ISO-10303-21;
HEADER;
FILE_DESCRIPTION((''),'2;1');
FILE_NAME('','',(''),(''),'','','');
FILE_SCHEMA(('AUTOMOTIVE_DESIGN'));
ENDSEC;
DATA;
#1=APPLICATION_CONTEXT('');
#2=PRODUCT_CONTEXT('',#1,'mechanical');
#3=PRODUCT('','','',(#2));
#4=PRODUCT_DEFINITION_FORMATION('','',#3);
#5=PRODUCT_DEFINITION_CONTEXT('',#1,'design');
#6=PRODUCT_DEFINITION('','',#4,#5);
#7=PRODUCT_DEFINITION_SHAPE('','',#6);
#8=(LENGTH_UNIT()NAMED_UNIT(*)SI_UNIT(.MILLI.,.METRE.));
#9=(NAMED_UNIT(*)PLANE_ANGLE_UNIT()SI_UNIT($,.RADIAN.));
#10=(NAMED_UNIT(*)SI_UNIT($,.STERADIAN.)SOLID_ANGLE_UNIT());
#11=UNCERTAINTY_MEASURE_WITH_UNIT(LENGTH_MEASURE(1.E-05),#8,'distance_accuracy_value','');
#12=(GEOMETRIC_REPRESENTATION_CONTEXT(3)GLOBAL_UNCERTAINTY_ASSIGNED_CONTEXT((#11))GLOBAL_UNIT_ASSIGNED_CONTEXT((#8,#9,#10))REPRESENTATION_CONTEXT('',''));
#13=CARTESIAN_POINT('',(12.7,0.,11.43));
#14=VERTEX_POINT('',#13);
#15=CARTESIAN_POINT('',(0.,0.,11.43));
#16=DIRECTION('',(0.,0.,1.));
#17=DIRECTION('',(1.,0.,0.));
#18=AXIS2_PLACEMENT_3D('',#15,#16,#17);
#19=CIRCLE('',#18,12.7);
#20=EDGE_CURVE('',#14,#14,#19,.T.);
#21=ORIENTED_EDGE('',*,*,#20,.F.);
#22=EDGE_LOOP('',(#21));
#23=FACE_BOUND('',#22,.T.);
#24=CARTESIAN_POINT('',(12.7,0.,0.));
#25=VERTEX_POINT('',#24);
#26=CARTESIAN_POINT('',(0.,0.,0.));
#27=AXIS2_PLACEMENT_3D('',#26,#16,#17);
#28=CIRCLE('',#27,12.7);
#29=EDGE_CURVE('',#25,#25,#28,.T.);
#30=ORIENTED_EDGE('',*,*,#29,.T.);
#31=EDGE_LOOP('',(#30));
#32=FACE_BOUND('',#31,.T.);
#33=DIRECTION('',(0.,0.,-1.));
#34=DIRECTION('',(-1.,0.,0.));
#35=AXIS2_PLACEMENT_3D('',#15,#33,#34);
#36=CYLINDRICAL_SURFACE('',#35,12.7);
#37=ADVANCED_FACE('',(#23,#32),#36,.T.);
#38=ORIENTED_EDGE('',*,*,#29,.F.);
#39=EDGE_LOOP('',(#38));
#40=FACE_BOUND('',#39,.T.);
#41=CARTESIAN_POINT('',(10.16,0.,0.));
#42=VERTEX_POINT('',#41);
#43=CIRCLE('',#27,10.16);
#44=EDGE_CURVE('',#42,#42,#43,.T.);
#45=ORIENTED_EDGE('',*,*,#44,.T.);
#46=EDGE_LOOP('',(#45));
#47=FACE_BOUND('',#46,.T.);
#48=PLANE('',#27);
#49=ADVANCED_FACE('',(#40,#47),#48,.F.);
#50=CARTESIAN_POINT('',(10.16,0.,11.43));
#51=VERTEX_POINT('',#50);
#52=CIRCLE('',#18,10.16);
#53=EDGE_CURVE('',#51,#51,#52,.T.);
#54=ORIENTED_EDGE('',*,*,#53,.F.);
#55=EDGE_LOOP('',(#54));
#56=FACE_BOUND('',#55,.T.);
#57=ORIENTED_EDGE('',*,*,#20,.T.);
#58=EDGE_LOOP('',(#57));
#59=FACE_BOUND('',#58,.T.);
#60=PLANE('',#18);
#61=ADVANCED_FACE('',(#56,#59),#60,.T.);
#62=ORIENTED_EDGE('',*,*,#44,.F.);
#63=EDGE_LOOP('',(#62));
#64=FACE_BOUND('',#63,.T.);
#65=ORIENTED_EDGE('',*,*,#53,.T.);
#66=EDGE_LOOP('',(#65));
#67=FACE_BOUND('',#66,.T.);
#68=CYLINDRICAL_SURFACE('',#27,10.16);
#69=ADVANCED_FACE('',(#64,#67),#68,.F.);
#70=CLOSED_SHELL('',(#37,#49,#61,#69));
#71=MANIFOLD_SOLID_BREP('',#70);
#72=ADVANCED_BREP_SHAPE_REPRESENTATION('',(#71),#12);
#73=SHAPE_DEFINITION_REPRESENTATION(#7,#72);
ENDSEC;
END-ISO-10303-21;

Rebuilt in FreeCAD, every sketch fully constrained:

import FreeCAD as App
import Part
import Sketcher
Q = App.Units.Quantity

doc = App.newDocument("Part")
body = doc.addObject("PartDesign::Body", "Body")

sketch1 = body.newObject("Sketcher::SketchObject", "Sketch")
sketch1.AttachmentSupport = (doc.getObject("XY_Plane"), [""])
sketch1.MapMode = "FlatFace"
sketch1.addGeometry(Part.Circle(App.Vector(0, 0, 0), App.Vector(0, 0, 1), 12.7), False)
sketch1.addConstraint([
    Sketcher.Constraint("Coincident", 0, 3, -1, 1),
    Sketcher.Constraint("Diameter", 0, Q("1 in")),
])
pad1 = body.newObject("PartDesign::Pad", "Pad")
pad1.Profile = sketch1
pad1.Length = Q("0.45 in")

sketch2 = body.newObject("Sketcher::SketchObject", "Sketch001")
sketch2.AttachmentSupport = (doc.getObject("XY_Plane"), [""])
sketch2.MapMode = "FlatFace"
sketch2.AttachmentOffset = App.Placement(App.Vector(0, 0, 0.45 * 25.4), App.Rotation())
sketch2.addGeometry(Part.Circle(App.Vector(0, 0, 0), App.Vector(0, 0, 1), 10.16), False)
sketch2.addConstraint([
    Sketcher.Constraint("Coincident", 0, 3, -1, 1),
    Sketcher.Constraint("Diameter", 0, Q("0.8 in")),
])
pocket1 = body.newObject("PartDesign::Pocket", "Pocket")
pocket1.Profile = sketch2
pocket1.Type = "ThroughAll"

doc.recompute()
